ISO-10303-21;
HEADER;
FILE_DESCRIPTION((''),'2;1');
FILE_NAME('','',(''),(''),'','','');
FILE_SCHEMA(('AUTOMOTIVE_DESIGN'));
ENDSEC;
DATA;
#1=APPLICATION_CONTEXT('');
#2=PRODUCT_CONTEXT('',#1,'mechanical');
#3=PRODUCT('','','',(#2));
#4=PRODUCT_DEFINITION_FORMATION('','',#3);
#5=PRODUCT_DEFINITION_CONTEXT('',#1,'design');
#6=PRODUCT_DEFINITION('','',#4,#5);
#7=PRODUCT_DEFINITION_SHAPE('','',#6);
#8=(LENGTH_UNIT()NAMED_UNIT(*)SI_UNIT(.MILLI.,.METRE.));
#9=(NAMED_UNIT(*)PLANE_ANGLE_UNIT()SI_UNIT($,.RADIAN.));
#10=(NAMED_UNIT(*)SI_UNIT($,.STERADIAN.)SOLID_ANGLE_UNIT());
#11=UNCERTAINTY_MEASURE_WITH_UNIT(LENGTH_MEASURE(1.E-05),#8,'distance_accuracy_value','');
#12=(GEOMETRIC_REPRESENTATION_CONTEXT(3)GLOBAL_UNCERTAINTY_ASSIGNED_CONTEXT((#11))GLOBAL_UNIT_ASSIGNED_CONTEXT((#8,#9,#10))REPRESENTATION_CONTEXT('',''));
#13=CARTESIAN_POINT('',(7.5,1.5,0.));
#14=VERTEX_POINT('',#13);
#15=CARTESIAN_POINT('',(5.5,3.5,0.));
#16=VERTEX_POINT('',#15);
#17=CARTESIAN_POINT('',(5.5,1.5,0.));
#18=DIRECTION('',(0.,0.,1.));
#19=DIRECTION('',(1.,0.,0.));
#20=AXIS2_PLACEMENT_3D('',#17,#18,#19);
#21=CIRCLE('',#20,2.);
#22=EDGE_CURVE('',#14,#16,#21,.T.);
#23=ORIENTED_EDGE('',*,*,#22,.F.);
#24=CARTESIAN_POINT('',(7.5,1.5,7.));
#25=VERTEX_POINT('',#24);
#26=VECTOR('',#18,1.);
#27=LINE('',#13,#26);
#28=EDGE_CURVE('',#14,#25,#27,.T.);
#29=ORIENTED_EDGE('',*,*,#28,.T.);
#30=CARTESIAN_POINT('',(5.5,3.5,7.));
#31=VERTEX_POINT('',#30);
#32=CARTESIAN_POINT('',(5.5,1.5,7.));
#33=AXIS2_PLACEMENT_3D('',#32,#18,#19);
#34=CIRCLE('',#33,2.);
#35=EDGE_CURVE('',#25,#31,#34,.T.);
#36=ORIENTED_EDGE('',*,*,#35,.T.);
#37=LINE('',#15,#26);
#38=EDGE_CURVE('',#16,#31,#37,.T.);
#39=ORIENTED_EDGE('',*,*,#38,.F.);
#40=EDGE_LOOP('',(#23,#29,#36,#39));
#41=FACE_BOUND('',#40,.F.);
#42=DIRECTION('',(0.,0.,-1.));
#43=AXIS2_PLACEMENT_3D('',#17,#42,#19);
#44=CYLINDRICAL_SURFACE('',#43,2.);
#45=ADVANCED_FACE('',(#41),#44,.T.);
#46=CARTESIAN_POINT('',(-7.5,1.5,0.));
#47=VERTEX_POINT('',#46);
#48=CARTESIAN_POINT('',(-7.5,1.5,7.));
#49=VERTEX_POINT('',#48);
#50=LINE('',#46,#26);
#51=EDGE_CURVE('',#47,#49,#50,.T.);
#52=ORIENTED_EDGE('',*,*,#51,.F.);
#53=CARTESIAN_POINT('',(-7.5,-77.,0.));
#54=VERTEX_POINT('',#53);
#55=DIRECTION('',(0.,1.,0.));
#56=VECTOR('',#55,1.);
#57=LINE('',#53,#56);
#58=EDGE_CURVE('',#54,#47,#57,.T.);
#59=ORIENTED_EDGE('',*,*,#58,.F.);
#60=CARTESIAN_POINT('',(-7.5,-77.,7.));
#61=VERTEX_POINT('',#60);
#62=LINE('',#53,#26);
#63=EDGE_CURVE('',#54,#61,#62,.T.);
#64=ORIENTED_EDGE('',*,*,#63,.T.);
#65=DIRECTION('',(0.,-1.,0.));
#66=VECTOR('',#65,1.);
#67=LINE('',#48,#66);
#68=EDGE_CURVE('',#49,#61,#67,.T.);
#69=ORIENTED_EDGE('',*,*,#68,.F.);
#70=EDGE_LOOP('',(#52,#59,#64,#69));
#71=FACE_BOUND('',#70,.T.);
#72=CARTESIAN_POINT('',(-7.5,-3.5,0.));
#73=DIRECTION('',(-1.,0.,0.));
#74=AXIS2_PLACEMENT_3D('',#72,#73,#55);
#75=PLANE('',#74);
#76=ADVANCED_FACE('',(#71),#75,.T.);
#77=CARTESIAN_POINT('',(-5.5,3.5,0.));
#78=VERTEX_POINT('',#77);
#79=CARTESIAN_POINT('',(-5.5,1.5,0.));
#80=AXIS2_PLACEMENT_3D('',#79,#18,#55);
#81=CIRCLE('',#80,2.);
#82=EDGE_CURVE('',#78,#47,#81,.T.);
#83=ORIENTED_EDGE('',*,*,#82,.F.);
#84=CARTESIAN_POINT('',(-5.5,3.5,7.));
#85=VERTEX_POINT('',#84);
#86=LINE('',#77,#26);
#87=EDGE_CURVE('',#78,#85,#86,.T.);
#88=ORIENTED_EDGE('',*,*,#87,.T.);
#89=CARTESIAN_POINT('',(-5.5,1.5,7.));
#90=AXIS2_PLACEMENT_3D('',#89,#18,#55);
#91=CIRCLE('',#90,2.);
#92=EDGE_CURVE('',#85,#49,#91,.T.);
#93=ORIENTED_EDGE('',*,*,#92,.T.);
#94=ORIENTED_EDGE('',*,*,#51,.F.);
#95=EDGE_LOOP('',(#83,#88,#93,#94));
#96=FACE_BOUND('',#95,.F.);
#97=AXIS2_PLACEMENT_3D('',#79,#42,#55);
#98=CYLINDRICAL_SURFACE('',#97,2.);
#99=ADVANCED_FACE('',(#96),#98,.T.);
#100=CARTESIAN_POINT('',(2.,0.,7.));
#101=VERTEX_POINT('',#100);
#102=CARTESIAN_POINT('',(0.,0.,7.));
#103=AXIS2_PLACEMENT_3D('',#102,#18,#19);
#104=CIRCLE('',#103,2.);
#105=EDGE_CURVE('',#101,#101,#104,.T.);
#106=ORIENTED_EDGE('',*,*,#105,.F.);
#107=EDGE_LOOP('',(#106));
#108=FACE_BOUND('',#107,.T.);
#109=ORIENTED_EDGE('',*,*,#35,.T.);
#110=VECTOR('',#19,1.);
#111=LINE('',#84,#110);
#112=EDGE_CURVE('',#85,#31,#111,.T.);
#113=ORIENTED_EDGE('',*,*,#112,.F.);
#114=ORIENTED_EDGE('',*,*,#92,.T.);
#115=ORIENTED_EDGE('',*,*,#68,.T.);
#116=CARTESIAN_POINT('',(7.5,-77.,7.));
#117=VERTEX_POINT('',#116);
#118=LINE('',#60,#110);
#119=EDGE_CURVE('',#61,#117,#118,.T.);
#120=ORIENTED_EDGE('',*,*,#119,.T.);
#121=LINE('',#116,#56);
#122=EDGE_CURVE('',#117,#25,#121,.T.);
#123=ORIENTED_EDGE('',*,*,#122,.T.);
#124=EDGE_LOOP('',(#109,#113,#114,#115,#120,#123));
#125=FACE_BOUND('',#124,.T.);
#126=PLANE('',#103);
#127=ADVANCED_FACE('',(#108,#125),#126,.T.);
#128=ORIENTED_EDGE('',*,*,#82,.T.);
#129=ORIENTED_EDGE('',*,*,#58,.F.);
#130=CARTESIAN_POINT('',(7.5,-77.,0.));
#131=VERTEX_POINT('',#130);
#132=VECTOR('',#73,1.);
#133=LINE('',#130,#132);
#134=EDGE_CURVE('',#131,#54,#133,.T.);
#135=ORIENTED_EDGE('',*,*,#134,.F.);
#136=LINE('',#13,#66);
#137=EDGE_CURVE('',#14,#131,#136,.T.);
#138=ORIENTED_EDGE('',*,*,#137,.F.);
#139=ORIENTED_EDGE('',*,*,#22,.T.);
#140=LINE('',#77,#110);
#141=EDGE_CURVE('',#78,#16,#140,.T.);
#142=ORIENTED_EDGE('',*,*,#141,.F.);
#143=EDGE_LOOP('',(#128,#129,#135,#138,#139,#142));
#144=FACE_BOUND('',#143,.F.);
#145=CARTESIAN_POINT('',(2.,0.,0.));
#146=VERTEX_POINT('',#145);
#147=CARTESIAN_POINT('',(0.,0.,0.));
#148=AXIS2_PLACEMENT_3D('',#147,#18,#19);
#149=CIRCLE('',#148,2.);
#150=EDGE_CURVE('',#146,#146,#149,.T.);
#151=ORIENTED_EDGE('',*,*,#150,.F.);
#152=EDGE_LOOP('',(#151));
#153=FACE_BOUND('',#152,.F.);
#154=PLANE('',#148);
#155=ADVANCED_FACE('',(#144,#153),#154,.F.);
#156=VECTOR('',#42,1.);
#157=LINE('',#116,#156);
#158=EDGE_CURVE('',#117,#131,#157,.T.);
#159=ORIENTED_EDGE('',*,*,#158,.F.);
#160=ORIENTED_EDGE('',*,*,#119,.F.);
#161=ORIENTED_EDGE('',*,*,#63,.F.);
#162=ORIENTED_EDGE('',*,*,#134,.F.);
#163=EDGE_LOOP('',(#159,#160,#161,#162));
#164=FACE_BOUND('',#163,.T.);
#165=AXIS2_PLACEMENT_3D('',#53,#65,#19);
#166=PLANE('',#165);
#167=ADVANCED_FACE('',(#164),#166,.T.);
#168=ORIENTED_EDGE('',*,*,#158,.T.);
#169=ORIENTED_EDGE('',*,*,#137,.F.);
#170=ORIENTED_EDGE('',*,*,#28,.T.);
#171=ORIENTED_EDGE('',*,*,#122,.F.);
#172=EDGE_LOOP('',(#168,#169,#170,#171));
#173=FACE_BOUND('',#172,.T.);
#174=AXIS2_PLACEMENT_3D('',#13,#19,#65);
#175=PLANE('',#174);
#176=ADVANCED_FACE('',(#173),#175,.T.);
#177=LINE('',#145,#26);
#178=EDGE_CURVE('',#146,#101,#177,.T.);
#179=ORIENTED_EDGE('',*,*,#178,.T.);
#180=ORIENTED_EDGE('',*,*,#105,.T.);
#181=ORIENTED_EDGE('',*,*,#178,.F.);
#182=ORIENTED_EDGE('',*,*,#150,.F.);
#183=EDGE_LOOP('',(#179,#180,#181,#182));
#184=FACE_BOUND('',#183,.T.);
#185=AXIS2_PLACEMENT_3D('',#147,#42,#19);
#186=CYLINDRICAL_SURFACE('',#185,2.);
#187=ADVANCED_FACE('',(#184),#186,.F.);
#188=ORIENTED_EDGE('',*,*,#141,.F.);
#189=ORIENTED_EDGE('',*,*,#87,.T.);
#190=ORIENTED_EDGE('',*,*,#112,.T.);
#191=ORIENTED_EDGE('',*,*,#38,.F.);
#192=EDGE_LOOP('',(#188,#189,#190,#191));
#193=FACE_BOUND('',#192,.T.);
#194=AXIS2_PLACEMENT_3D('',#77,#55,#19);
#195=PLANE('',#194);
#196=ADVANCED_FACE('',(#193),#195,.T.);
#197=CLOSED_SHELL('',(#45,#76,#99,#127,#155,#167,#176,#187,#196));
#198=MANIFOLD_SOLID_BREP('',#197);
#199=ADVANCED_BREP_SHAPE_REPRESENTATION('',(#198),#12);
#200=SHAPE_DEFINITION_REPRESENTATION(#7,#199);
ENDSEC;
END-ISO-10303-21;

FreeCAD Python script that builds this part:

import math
import FreeCAD as App
import Part
import Sketcher
from FreeCAD import Vector
Q = App.Units.Quantity

doc = App.newDocument("Part")
body = doc.addObject("PartDesign::Body", "Body")

sketch1 = doc.addObject("Sketcher::SketchObject", "Sketch")
body.addObject(sketch1)
sketch1.AttachmentSupport = (doc.XY_Plane, [""])
sketch1.MapMode = "FlatFace"
sketch1.addGeometry([
    Part.LineSegment(Vector(5.5, 3.5, 0), Vector(-5.5, 3.5, 0)),
    Part.ArcOfCircle(Part.Circle(Vector(-5.5, 1.5, 0), Vector(0, 0, 1), 2), math.radians(90), math.radians(180)),
    Part.LineSegment(Vector(-7.5, 1.5, 0), Vector(-7.5, -3.5, 0)),
    Part.LineSegment(Vector(-7.5, -3.5, 0), Vector(7.5, -3.5, 0)),
    Part.LineSegment(Vector(7.5, -3.5, 0), Vector(7.5, 1.5, 0)),
    Part.ArcOfCircle(Part.Circle(Vector(5.5, 1.5, 0), Vector(0, 0, 1), 2), math.radians(0), math.radians(90)),
    Part.Circle(Vector(0, 0, 0), Vector(0, 0, 1), 2),
], False)
sketch1.addConstraint([
    Sketcher.Constraint("Tangent", 0, 2, 1, 1),
    Sketcher.Constraint("Tangent", 1, 2, 2, 1),
    Sketcher.Constraint("Coincident", 2, 2, 3, 1),
    Sketcher.Constraint("Coincident", 3, 2, 4, 1),
    Sketcher.Constraint("Tangent", 4, 2, 5, 1),
    Sketcher.Constraint("Tangent", 5, 2, 0, 1),
    Sketcher.Constraint("Horizontal", 0),
    Sketcher.Constraint("Vertical", 2),
    Sketcher.Constraint("Horizontal", 3),
    Sketcher.Constraint("Vertical", 4),
    Sketcher.Constraint("Coincident", 6, 3, -1, 1),
    Sketcher.Constraint("Equal", 1, 5),
    Sketcher.Constraint("Equal", 5, 6),
    Sketcher.Constraint("Diameter", 6, Q("4 mm")),
    Sketcher.Constraint("DistanceX", 3, 1, 3, 2, Q("15 mm")),
    Sketcher.Constraint("DistanceY", 2, 2, 0, 2, Q("7 mm")),
    Sketcher.Constraint("DistanceY", -1, 1, 0, 2, Q("3.5 mm")),
    Sketcher.Constraint("DistanceX", 1, 2, -1, 1, Q("7.5 mm")),
])
pad1 = doc.addObject("PartDesign::Pad", "Pad")
body.addObject(pad1)
pad1.Profile = sketch1
pad1.Length = 7

sketch2 = doc.addObject("Sketcher::SketchObject", "Sketch001")
body.addObject(sketch2)
sketch2.AttachmentSupport = (doc.XZ_Plane, [""])
sketch2.MapMode = "FlatFace"
sketch2.AttachmentOffset = App.Placement(Vector(0, 0, 3.5), App.Rotation())
sketch2.addGeometry([
    Part.LineSegment(Vector(-8, 0, 0), Vector(8, 0, 0)),
    Part.LineSegment(Vector(8, 0, 0), Vector(8, 7, 0)),
    Part.LineSegment(Vector(8, 7, 0), Vector(-8, 7, 0)),
    Part.LineSegment(Vector(-8, 7, 0), Vector(-8, 0, 0)),
], False)
sketch2.addConstraint([
    Sketcher.Constraint("Coincident", 0, 2, 1, 1),
    Sketcher.Constraint("Coincident", 1, 2, 2, 1),
    Sketcher.Constraint("Coincident", 2, 2, 3, 1),
    Sketcher.Constraint("Coincident", 3, 2, 0, 1),
    Sketcher.Constraint("Horizontal", 0),
    Sketcher.Constraint("Vertical", 1),
    Sketcher.Constraint("Horizontal", 2),
    Sketcher.Constraint("Vertical", 3),
    Sketcher.Constraint("Symmetric", 0, 2, 3, 2, -1, 1),
    Sketcher.Constraint("DistanceX", 0, 1, 0, 2, Q("15 mm")),
    Sketcher.Constraint("DistanceY", 1, 1, 1, 2, Q("7 mm")),
])
pad2 = doc.addObject("PartDesign::Pad", "Pad001")
body.addObject(pad2)
pad2.Profile = sketch2
pad2.Length = 73.5

doc.recompute()
